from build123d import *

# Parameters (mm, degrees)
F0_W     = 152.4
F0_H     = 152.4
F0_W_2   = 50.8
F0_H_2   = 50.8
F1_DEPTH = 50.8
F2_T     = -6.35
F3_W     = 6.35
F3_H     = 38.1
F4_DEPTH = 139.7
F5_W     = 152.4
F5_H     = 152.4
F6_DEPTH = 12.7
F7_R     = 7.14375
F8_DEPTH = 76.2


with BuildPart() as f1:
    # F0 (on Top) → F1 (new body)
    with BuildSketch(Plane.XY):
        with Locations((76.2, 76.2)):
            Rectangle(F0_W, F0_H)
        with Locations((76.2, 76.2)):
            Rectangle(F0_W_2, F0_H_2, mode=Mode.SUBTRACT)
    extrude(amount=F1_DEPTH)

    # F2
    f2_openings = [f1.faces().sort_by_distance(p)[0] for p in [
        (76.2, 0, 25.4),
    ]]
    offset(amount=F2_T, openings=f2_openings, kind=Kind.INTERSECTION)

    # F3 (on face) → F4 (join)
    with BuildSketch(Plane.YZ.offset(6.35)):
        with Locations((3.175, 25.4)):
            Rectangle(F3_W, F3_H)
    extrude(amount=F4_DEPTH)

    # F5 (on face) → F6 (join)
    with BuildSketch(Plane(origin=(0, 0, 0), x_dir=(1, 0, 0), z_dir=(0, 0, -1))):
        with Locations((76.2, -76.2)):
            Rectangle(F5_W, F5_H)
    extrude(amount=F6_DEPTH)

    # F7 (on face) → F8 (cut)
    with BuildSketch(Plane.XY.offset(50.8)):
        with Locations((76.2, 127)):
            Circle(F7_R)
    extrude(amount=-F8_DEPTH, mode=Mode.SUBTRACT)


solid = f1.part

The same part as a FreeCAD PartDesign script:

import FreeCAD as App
import Part
import Sketcher
Q = App.Units.Quantity


def faces_at(feature, points):
    """Names of the faces that lie closest to the given points."""
    faces = feature.Shape.Faces
    near = lambda p: min(range(len(faces)), key=lambda i: faces[i].distToShape(Part.Vertex(*p))[0])
    return sorted({f"Face{near(p) + 1}" for p in points})

doc = App.newDocument("Part")
body = doc.addObject("PartDesign::Body", "Body")

# Sketch on XY plane
sketch1 = body.newObject("Sketcher::SketchObject", "Sketch")
sketch1.AttachmentSupport = (doc.getObject("XY_Plane"), [""])
sketch1.MapMode = "FlatFace"
sketch1.addGeometry([
    Part.LineSegment(App.Vector(0, 152.4, 0), App.Vector(0, 0, 0)),  # 0
    Part.LineSegment(App.Vector(0, 0, 0), App.Vector(152.4, 0, 0)),  # 1
    Part.LineSegment(App.Vector(152.4, 0, 0), App.Vector(152.4, 152.4, 0)),  # 2
    Part.LineSegment(App.Vector(152.4, 152.4, 0), App.Vector(0, 152.4, 0)),  # 3
    Part.LineSegment(App.Vector(101.6, 50.8, 0), App.Vector(50.8, 50.8, 0)),  # 4
    Part.LineSegment(App.Vector(50.8, 50.8, 0), App.Vector(50.8, 101.6, 0)),  # 5
    Part.LineSegment(App.Vector(50.8, 101.6, 0), App.Vector(101.6, 101.6, 0)),  # 6
    Part.LineSegment(App.Vector(101.6, 101.6, 0), App.Vector(101.6, 50.8, 0)),  # 7
], False)
sketch1.addConstraint([
    Sketcher.Constraint("Coincident", 0, 2, 1, 1),
    Sketcher.Constraint("Coincident", 1, 2, 2, 1),
    Sketcher.Constraint("Coincident", 2, 2, 3, 1),
    Sketcher.Constraint("Coincident", 3, 2, 0, 1),
    Sketcher.Constraint("Coincident", 4, 2, 5, 1),
    Sketcher.Constraint("Coincident", 5, 2, 6, 1),
    Sketcher.Constraint("Coincident", 6, 2, 7, 1),
    Sketcher.Constraint("Coincident", 7, 2, 4, 1),
    Sketcher.Constraint("Vertical", 0),
    Sketcher.Constraint("Horizontal", 1),
    Sketcher.Constraint("Vertical", 2),
    Sketcher.Constraint("Horizontal", 3),
    Sketcher.Constraint("Horizontal", 4),
    Sketcher.Constraint("Vertical", 5),
    Sketcher.Constraint("Horizontal", 6),
    Sketcher.Constraint("Vertical", 7),
    Sketcher.Constraint("Coincident", 0, 2, -1, 1),
    Sketcher.Constraint("Equal", 3, 0),
    Sketcher.Constraint("Equal", 6, 5),
    Sketcher.Constraint("DistanceX", 1, 1, 1, 2, Q("6 in")),
    Sketcher.Constraint("DistanceX", 4, 2, 4, 1, Q("2 in")),
    Sketcher.Constraint("DistanceX", -1, 1, 4, 2, Q("2 in")),
    Sketcher.Constraint("DistanceY", -1, 1, 4, 2, Q("2 in")),
])
pad1 = body.newObject("PartDesign::Pad", "Pad")
pad1.Profile = sketch1
pad1.Length = Q("2 in")
doc.recompute()

thickness = body.newObject("PartDesign::Thickness", "Thickness")
thickness.Base = (pad1, faces_at(pad1, [(76.2, 0, 25.4)]))
thickness.Value = Q("0.25 in")
thickness.Reversed = True
thickness.Join = "Intersection"

# Sketch on YZ plane
sketch2 = body.newObject("Sketcher::SketchObject", "Sketch001")
sketch2.AttachmentSupport = (doc.getObject("YZ_Plane"), [""])
sketch2.MapMode = "FlatFace"
sketch2.AttachmentOffset = App.Placement(App.Vector(0, 0, 0.25 * 25.4), App.Rotation())
sketch2.addGeometry([
    Part.LineSegment(App.Vector(0, 44.45, 0), App.Vector(0, 6.35, 0)),
    Part.LineSegment(App.Vector(0, 6.35, 0), App.Vector(6.35, 6.35, 0)),
    Part.LineSegment(App.Vector(6.35, 6.35, 0), App.Vector(6.35, 44.45, 0)),
    Part.LineSegment(App.Vector(6.35, 44.45, 0), App.Vector(0, 44.45, 0)),
], False)
sketch2.addConstraint([
    Sketcher.Constraint("Coincident", 0, 2, 1, 1),
    Sketcher.Constraint("Coincident", 1, 2, 2, 1),
    Sketcher.Constraint("Coincident", 2, 2, 3, 1),
    Sketcher.Constraint("Coincident", 3, 2, 0, 1),
    Sketcher.Constraint("Vertical", 0),
    Sketcher.Constraint("Horizontal", 1),
    Sketcher.Constraint("Vertical", 2),
    Sketcher.Constraint("Horizontal", 3),
    Sketcher.Constraint("PointOnObject", 0, 2, -2),
    Sketcher.Constraint("DistanceY", 0, 2, 0, 1, Q("1.5 in")),
    Sketcher.Constraint("DistanceX", 1, 1, 1, 2, Q("0.25 in")),
    Sketcher.Constraint("DistanceY", -1, 1, 0, 2, Q("0.25 in")),
])
pad2 = body.newObject("PartDesign::Pad", "Pad001")
pad2.Profile = sketch2
pad2.Length = Q("5.5 in")

# Sketch on XY plane
sketch3 = body.newObject("Sketcher::SketchObject", "Sketch002")
sketch3.AttachmentSupport = (doc.getObject("XY_Plane"), [""])
sketch3.MapMode = "FlatFace"
sketch3.addGeometry([
    Part.LineSegment(App.Vector(0, 0, 0), App.Vector(0, 152.4, 0)),
    Part.LineSegment(App.Vector(0, 152.4, 0), App.Vector(152.4, 152.4, 0)),
    Part.LineSegment(App.Vector(152.4, 152.4, 0), App.Vector(152.4, 0, 0)),
    Part.LineSegment(App.Vector(152.4, 0, 0), App.Vector(0, 0, 0)),
], False)
sketch3.addConstraint([
    Sketcher.Constraint("Coincident", 0, 2, 1, 1),
    Sketcher.Constraint("Coincident", 1, 2, 2, 1),
    Sketcher.Constraint("Coincident", 2, 2, 3, 1),
    Sketcher.Constraint("Coincident", 3, 2, 0, 1),
    Sketcher.Constraint("Vertical", 0),
    Sketcher.Constraint("Horizontal", 1),
    Sketcher.Constraint("Vertical", 2),
    Sketcher.Constraint("Horizontal", 3),
    Sketcher.Constraint("Coincident", 3, 2, -1, 1),
    Sketcher.Constraint("Equal", 3, 0),
    Sketcher.Constraint("DistanceX", 1, 1, 1, 2, Q("6 in")),
])
pad3 = body.newObject("PartDesign::Pad", "Pad002")
pad3.Profile = sketch3
pad3.Length = Q("0.5 in")
pad3.Reversed = True

# Sketch on XY plane
sketch4 = body.newObject("Sketcher::SketchObject", "Sketch003")
sketch4.AttachmentSupport = (doc.getObject("XY_Plane"), [""])
sketch4.MapMode = "FlatFace"
sketch4.AttachmentOffset = App.Placement(App.Vector(0, 0, 2 * 25.4), App.Rotation())
sketch4.addGeometry(Part.Circle(App.Vector(76.2, 127, 0), App.Vector(0, 0, 1), 7.14375), False)
sketch4.addConstraint([
    Sketcher.Constraint("Diameter", 0, Q("0.5625 in")),
    Sketcher.Constraint("DistanceX", -1, 1, 0, 3, Q("3 in")),
    Sketcher.Constraint("DistanceY", -1, 1, 0, 3, Q("5 in")),
])
pocket1 = body.newObject("PartDesign::Pocket", "Pocket")
pocket1.Profile = sketch4
pocket1.Length = Q("3 in")

doc.recompute()
